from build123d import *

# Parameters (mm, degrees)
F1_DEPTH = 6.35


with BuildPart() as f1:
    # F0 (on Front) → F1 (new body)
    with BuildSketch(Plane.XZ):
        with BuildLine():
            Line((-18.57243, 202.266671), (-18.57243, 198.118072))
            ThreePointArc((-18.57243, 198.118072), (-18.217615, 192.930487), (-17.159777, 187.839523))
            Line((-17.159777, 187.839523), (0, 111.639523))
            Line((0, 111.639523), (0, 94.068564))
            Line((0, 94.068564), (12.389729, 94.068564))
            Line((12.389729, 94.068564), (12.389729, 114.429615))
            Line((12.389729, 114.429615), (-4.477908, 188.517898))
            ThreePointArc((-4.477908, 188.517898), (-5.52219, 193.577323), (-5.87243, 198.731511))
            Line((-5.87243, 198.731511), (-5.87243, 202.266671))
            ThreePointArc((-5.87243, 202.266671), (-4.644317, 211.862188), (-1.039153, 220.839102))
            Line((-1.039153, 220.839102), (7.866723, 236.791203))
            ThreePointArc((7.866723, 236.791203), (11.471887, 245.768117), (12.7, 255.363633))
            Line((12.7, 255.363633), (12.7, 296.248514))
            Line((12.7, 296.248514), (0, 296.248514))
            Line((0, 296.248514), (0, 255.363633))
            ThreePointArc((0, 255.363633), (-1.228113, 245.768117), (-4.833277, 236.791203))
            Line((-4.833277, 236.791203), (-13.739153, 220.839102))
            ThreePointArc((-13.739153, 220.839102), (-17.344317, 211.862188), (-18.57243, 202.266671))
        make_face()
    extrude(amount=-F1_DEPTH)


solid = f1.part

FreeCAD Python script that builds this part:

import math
import FreeCAD as App
import Part
import Sketcher
from FreeCAD import Vector
Q = App.Units.Quantity

doc = App.newDocument("Part")
params = doc.addObject("Spreadsheet::Sheet", "Params")
for row, (alias, value) in enumerate([
    ("sketch1_width", "0.5 in"),
    ("pad1_length", "0.25 in"),
], start=1):
    params.set(f"A{row}", alias)
    params.set(f"B{row}", "=" + value)
    params.setAlias(f"B{row}", alias)

body = doc.addObject("PartDesign::Body", "Body")

# Sketch on XZ plane
sketch1 = doc.addObject("Sketcher::SketchObject", "Sketch")
body.addObject(sketch1)
sketch1.AttachmentSupport = (doc.XZ_Plane, [""])
sketch1.MapMode = "FlatFace"
sketch1.addGeometry(Part.LineSegment(Vector(-18.57243, 202.266671, 0), Vector(-18.57243, 198.118072, 0)), False)
sketch1.addGeometry(Part.ArcOfCircle(Part.Circle(Vector(19.527529, 198.118066, 0), Vector(0, 0, 1), 38.099959), math.radians(179.999992), math.radians(195.651077)), False)
sketch1.addGeometry(Part.LineSegment(Vector(-17.159777, 187.839523, 0), Vector(0, 111.639523, 0)), False)
sketch1.addGeometry(Part.LineSegment(Vector(0, 111.639523, 0), Vector(0, 94.068564, 0)), False)
sketch1.addGeometry(Part.LineSegment(Vector(0, 94.068564, 0), Vector(12.389729, 94.068564, 0)), False)
sketch1.addGeometry(Part.LineSegment(Vector(12.389729, 94.068564, 0), Vector(12.389729, 114.429615, 0)), False)
sketch1.addGeometry(Part.LineSegment(Vector(12.389729, 114.429615, 0), Vector(-4.477908, 188.517898, 0)), False)
sketch1.addGeometry(Part.ArcOfCircle(Part.Circle(Vector(32.227526, 198.731505, 0), Vector(0, 0, 1), 38.099956), math.radians(179.999991), math.radians(195.549689)), False)
sketch1.addGeometry(Part.LineSegment(Vector(-5.87243, 198.731511, 0), Vector(-5.87243, 202.266671, 0)), False)
sketch1.addGeometry(Part.ArcOfCircle(Part.Circle(Vector(32.227582, 202.266669, 0), Vector(0, 0, 1), 38.100012), math.radians(150.825883), math.radians(179.999998)), False)
sketch1.addGeometry(Part.LineSegment(Vector(-1.039153, 220.839102, 0), Vector(7.866723, 236.791203, 0)), False)
sketch1.addGeometry(Part.ArcOfCircle(Part.Circle(Vector(-25.400012, 255.363636, 0), Vector(0, 0, 1), 38.100012), math.radians(-29.174117), math.radians(-0.000004)), False)
sketch1.addGeometry(Part.LineSegment(Vector(12.7, 255.363633, 0), Vector(12.7, 296.248514, 0)), False)
sketch1.addGeometry(Part.LineSegment(Vector(12.7, 296.248514, 0), Vector(0, 296.248514, 0)), False)
sketch1.addGeometry(Part.LineSegment(Vector(0, 296.248514, 0), Vector(0, 255.363633, 0)), False)
sketch1.addGeometry(Part.ArcOfCircle(Part.Circle(Vector(-38.100012, 255.363636, 0), Vector(0, 0, 1), 38.100012), math.radians(-29.174117), math.radians(-0.000004)), False)
sketch1.addGeometry(Part.LineSegment(Vector(-4.833277, 236.791203, 0), Vector(-13.739153, 220.839102, 0)), False)
sketch1.addGeometry(Part.ArcOfCircle(Part.Circle(Vector(19.527582, 202.266669, 0), Vector(0, 0, 1), 38.100012), math.radians(150.825883), math.radians(179.999998)), False)
sketch1.addConstraint(Sketcher.Constraint("Tangent", 0, 2, 1, 1))
sketch1.addConstraint(Sketcher.Constraint("Coincident", 1, 2, 2, 1))
sketch1.addConstraint(Sketcher.Constraint("Coincident", 2, 2, 3, 1))
sketch1.addConstraint(Sketcher.Constraint("Coincident", 3, 2, 4, 1))
sketch1.addConstraint(Sketcher.Constraint("Coincident", 4, 2, 5, 1))
sketch1.addConstraint(Sketcher.Constraint("Coincident", 5, 2, 6, 1))
sketch1.addConstraint(Sketcher.Constraint("Coincident", 6, 2, 7, 2))
sketch1.addConstraint(Sketcher.Constraint("Tangent", 7, 1, 8, 1))
sketch1.addConstraint(Sketcher.Constraint("Tangent", 8, 2, 9, 2))
sketch1.addConstraint(Sketcher.Constraint("Tangent", 9, 1, 10, 1))
sketch1.addConstraint(Sketcher.Constraint("Tangent", 10, 2, 11, 1))
sketch1.addConstraint(Sketcher.Constraint("Tangent", 11, 2, 12, 1))
sketch1.addConstraint(Sketcher.Constraint("Coincident", 12, 2, 13, 1))
sketch1.addConstraint(Sketcher.Constraint("Coincident", 13, 2, 14, 1))
sketch1.addConstraint(Sketcher.Constraint("Tangent", 14, 2, 15, 2))
sketch1.addConstraint(Sketcher.Constraint("Tangent", 15, 1, 16, 1))
sketch1.addConstraint(Sketcher.Constraint("Tangent", 16, 2, 17, 1))
sketch1.addConstraint(Sketcher.Constraint("Tangent", 17, 2, 0, 1))
sketch1.addConstraint(Sketcher.Constraint("Vertical", 0))
sketch1.addConstraint(Sketcher.Constraint("Vertical", 3))
sketch1.addConstraint(Sketcher.Constraint("Horizontal", 4))
sketch1.addConstraint(Sketcher.Constraint("Vertical", 5))
sketch1.addConstraint(Sketcher.Constraint("Vertical", 8))
sketch1.addConstraint(Sketcher.Constraint("Vertical", 12))
sketch1.addConstraint(Sketcher.Constraint("Horizontal", 13))
sketch1.addConstraint(Sketcher.Constraint("Vertical", 14))
sketch1.addConstraint(Sketcher.Constraint("Equal", 9, 11))
sketch1.addConstraint(Sketcher.Constraint("Equal", 11, 15))
sketch1.addConstraint(Sketcher.Constraint("Equal", 15, 17))
sketch1.addConstraint(Sketcher.Constraint("PointOnObject", 2, 2, -2))
sketch1.addConstraint(Sketcher.Constraint("PointOnObject", 13, 2, -2))
sketch1.addConstraint(Sketcher.Constraint("Parallel", 10, 16))
sketch1.addConstraint(Sketcher.Constraint("Horizontal", 11, 3, 15, 3))
sketch1.addConstraint(Sketcher.Constraint("Horizontal", 9, 3, 17, 3))
sketch1.addConstraint(Sketcher.Constraint("DistanceX", 13, 2, 13, 1, Q("0.5 in")))
sketch1.addConstraint(Sketcher.Constraint("DistanceY", 2, 2, 1, 2, Q("3 in")))
sketch1.addConstraint(Sketcher.Constraint("DistanceX", 1, 3, 7, 3, Q("0.4999999 in")))
sketch1.addConstraint(Sketcher.Constraint("Radius", 1, Q("38.099959 mm")))
sketch1.addConstraint(Sketcher.Constraint("Radius", 9, Q("38.100012 mm")))
sketch1.addConstraint(Sketcher.Constraint("DistanceY", 0, 2, 0, 1, Q("4.148599 mm")))
sketch1.addConstraint(Sketcher.Constraint("DistanceX", 4, 1, 4, 2, Q("12.389729 mm")))
sketch1.addConstraint(Sketcher.Constraint("DistanceY", 3, 2, 3, 1, Q("17.570959 mm")))
sketch1.addConstraint(Sketcher.Constraint("DistanceY", 5, 1, 5, 2, Q("20.361051 mm")))
sketch1.addConstraint(Sketcher.Constraint("DistanceY", 8, 1, 8, 2, Q("3.53516 mm")))
sketch1.addConstraint(Sketcher.Constraint("DistanceY", 12, 1, 12, 2, Q("40.884881 mm")))
sketch1.addConstraint(Sketcher.Constraint("DistanceY", -1, 1, 6, 2, Q("188.517898 mm")))
sketch1.addConstraint(Sketcher.Constraint("DistanceY", -1, 1, 16, 2, Q("220.839102 mm")))
sketch1.addConstraint(Sketcher.Constraint("DistanceX", 4, 2, 1, 3, Q("7.1378 mm")))
sketch1.addConstraint(Sketcher.Constraint("DistanceY", 9, 1, 10, 2, Q("15.952101 mm")))
sketch1.addConstraint(Sketcher.Constraint("Distance", 6, Q("75.984149 mm")))
sketch1.setExpression("Constraints[34]", "Params.sketch1_width")
pad1 = doc.addObject("PartDesign::Pad", "Pad")
body.addObject(pad1)
pad1.Profile = sketch1
pad1.setExpression("Length", "Params.pad1_length")
pad1.Reversed = True

doc.recompute()
